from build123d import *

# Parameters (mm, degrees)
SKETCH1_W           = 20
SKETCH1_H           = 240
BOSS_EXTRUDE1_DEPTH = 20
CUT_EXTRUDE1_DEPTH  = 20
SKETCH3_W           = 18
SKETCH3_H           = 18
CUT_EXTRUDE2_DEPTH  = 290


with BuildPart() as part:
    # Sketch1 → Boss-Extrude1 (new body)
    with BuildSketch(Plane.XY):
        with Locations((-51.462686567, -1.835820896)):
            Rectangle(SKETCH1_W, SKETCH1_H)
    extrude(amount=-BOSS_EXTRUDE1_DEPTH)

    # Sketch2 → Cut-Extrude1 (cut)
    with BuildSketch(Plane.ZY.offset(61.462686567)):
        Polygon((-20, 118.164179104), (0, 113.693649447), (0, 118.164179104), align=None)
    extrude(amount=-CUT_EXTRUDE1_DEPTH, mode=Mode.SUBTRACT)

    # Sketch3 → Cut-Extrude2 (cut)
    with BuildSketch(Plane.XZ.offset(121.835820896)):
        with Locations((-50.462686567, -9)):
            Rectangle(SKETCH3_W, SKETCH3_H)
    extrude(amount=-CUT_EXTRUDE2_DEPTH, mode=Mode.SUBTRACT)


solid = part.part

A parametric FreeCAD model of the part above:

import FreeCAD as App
import Part
import Sketcher
from FreeCAD import Vector
Q = App.Units.Quantity

doc = App.newDocument("Part")
body = doc.addObject("PartDesign::Body", "Body")

sketch1 = doc.addObject("Sketcher::SketchObject", "Sketch")
body.addObject(sketch1)
sketch1.AttachmentSupport = (doc.XY_Plane, [""])
sketch1.MapMode = "FlatFace"
sketch1.addGeometry([
    Part.LineSegment(Vector(-61.462687, 118.164179, 0), Vector(-61.462687, -121.835821, 0)),
    Part.LineSegment(Vector(-61.462687, -121.835821, 0), Vector(-41.462687, -121.835821, 0)),
    Part.LineSegment(Vector(-41.462687, -121.835821, 0), Vector(-41.462687, 118.164179, 0)),
    Part.LineSegment(Vector(-41.462687, 118.164179, 0), Vector(-61.462687, 118.164179, 0)),
], False)
sketch1.addConstraint([
    Sketcher.Constraint("Coincident", 0, 2, 1, 1),
    Sketcher.Constraint("Coincident", 1, 2, 2, 1),
    Sketcher.Constraint("Coincident", 2, 2, 3, 1),
    Sketcher.Constraint("Coincident", 3, 2, 0, 1),
    Sketcher.Constraint("Vertical", 0),
    Sketcher.Constraint("Horizontal", 1),
    Sketcher.Constraint("Vertical", 2),
    Sketcher.Constraint("Horizontal", 3),
    Sketcher.Constraint("DistanceX", 1, 1, 1, 2, 20.0),
    Sketcher.Constraint("DistanceY", 0, 2, 0, 1, 240.0),
    Sketcher.Constraint("DistanceY", 0, 2, -1, 1, 121.835821),
    Sketcher.Constraint("DistanceX", 0, 2, -1, 1, 61.462687),
])
pad1 = doc.addObject("PartDesign::Pad", "Pad")
body.addObject(pad1)
pad1.Profile = sketch1
pad1.Length = 20
pad1.Reversed = True

sketch2 = doc.addObject("Sketcher::SketchObject", "Sketch001")
body.addObject(sketch2)
sketch2.AttachmentSupport = (doc.YZ_Plane, [""])
sketch2.MapMode = "FlatFace"
sketch2.AttachmentOffset = App.Placement(Vector(0, 0, -61.462687), App.Rotation())
sketch2.addGeometry([
    Part.LineSegment(Vector(118.164179, -20, 0), Vector(113.693649, 0, 0)),
    Part.LineSegment(Vector(113.693649, 0, 0), Vector(118.164179, 0, 0)),
    Part.LineSegment(Vector(118.164179, 0, 0), Vector(118.164179, -20, 0)),
], False)
sketch2.addConstraint([
    Sketcher.Constraint("Coincident", 0, 2, 1, 1),
    Sketcher.Constraint("Coincident", 1, 2, 2, 1),
    Sketcher.Constraint("Coincident", 2, 2, 0, 1),
    Sketcher.Constraint("Horizontal", 1),
    Sketcher.Constraint("Vertical", 2),
    Sketcher.Constraint("PointOnObject", 0, 2, -1),
    Sketcher.Constraint("DistanceY", 2, 2, 2, 1, 20.0),
    Sketcher.Constraint("Angle", 0, Q("102.6 deg")),
    Sketcher.Constraint("DistanceX", -1, 1, 0, 2, 113.693649),
])
pocket1 = doc.addObject("PartDesign::Pocket", "Pocket")
body.addObject(pocket1)
pocket1.Profile = sketch2
pocket1.Length = 20
pocket1.Reversed = True

sketch3 = doc.addObject("Sketcher::SketchObject", "Sketch002")
body.addObject(sketch3)
sketch3.AttachmentSupport = (doc.XZ_Plane, [""])
sketch3.MapMode = "FlatFace"
sketch3.AttachmentOffset = App.Placement(Vector(0, 0, 121.835821), App.Rotation())
sketch3.addGeometry([
    Part.LineSegment(Vector(-59.462687, 0, 0), Vector(-59.462687, -18, 0)),
    Part.LineSegment(Vector(-59.462687, -18, 0), Vector(-41.462687, -18, 0)),
    Part.LineSegment(Vector(-41.462687, -18, 0), Vector(-41.462687, 0, 0)),
    Part.LineSegment(Vector(-41.462687, 0, 0), Vector(-59.462687, 0, 0)),
], False)
sketch3.addConstraint([
    Sketcher.Constraint("Coincident", 0, 2, 1, 1),
    Sketcher.Constraint("Coincident", 1, 2, 2, 1),
    Sketcher.Constraint("Coincident", 2, 2, 3, 1),
    Sketcher.Constraint("Coincident", 3, 2, 0, 1),
    Sketcher.Constraint("Vertical", 0),
    Sketcher.Constraint("Horizontal", 1),
    Sketcher.Constraint("Vertical", 2),
    Sketcher.Constraint("Horizontal", 3),
    Sketcher.Constraint("PointOnObject", 2, 2, -1),
    Sketcher.Constraint("Equal", 3, 0),
    Sketcher.Constraint("DistanceX", 1, 1, 1, 2, 18.0),
    Sketcher.Constraint("DistanceX", 0, 2, -1, 1, 59.462687),
])
pocket2 = doc.addObject("PartDesign::Pocket", "Pocket001")
body.addObject(pocket2)
pocket2.Profile = sketch3
pocket2.Length = 290

doc.recompute()
